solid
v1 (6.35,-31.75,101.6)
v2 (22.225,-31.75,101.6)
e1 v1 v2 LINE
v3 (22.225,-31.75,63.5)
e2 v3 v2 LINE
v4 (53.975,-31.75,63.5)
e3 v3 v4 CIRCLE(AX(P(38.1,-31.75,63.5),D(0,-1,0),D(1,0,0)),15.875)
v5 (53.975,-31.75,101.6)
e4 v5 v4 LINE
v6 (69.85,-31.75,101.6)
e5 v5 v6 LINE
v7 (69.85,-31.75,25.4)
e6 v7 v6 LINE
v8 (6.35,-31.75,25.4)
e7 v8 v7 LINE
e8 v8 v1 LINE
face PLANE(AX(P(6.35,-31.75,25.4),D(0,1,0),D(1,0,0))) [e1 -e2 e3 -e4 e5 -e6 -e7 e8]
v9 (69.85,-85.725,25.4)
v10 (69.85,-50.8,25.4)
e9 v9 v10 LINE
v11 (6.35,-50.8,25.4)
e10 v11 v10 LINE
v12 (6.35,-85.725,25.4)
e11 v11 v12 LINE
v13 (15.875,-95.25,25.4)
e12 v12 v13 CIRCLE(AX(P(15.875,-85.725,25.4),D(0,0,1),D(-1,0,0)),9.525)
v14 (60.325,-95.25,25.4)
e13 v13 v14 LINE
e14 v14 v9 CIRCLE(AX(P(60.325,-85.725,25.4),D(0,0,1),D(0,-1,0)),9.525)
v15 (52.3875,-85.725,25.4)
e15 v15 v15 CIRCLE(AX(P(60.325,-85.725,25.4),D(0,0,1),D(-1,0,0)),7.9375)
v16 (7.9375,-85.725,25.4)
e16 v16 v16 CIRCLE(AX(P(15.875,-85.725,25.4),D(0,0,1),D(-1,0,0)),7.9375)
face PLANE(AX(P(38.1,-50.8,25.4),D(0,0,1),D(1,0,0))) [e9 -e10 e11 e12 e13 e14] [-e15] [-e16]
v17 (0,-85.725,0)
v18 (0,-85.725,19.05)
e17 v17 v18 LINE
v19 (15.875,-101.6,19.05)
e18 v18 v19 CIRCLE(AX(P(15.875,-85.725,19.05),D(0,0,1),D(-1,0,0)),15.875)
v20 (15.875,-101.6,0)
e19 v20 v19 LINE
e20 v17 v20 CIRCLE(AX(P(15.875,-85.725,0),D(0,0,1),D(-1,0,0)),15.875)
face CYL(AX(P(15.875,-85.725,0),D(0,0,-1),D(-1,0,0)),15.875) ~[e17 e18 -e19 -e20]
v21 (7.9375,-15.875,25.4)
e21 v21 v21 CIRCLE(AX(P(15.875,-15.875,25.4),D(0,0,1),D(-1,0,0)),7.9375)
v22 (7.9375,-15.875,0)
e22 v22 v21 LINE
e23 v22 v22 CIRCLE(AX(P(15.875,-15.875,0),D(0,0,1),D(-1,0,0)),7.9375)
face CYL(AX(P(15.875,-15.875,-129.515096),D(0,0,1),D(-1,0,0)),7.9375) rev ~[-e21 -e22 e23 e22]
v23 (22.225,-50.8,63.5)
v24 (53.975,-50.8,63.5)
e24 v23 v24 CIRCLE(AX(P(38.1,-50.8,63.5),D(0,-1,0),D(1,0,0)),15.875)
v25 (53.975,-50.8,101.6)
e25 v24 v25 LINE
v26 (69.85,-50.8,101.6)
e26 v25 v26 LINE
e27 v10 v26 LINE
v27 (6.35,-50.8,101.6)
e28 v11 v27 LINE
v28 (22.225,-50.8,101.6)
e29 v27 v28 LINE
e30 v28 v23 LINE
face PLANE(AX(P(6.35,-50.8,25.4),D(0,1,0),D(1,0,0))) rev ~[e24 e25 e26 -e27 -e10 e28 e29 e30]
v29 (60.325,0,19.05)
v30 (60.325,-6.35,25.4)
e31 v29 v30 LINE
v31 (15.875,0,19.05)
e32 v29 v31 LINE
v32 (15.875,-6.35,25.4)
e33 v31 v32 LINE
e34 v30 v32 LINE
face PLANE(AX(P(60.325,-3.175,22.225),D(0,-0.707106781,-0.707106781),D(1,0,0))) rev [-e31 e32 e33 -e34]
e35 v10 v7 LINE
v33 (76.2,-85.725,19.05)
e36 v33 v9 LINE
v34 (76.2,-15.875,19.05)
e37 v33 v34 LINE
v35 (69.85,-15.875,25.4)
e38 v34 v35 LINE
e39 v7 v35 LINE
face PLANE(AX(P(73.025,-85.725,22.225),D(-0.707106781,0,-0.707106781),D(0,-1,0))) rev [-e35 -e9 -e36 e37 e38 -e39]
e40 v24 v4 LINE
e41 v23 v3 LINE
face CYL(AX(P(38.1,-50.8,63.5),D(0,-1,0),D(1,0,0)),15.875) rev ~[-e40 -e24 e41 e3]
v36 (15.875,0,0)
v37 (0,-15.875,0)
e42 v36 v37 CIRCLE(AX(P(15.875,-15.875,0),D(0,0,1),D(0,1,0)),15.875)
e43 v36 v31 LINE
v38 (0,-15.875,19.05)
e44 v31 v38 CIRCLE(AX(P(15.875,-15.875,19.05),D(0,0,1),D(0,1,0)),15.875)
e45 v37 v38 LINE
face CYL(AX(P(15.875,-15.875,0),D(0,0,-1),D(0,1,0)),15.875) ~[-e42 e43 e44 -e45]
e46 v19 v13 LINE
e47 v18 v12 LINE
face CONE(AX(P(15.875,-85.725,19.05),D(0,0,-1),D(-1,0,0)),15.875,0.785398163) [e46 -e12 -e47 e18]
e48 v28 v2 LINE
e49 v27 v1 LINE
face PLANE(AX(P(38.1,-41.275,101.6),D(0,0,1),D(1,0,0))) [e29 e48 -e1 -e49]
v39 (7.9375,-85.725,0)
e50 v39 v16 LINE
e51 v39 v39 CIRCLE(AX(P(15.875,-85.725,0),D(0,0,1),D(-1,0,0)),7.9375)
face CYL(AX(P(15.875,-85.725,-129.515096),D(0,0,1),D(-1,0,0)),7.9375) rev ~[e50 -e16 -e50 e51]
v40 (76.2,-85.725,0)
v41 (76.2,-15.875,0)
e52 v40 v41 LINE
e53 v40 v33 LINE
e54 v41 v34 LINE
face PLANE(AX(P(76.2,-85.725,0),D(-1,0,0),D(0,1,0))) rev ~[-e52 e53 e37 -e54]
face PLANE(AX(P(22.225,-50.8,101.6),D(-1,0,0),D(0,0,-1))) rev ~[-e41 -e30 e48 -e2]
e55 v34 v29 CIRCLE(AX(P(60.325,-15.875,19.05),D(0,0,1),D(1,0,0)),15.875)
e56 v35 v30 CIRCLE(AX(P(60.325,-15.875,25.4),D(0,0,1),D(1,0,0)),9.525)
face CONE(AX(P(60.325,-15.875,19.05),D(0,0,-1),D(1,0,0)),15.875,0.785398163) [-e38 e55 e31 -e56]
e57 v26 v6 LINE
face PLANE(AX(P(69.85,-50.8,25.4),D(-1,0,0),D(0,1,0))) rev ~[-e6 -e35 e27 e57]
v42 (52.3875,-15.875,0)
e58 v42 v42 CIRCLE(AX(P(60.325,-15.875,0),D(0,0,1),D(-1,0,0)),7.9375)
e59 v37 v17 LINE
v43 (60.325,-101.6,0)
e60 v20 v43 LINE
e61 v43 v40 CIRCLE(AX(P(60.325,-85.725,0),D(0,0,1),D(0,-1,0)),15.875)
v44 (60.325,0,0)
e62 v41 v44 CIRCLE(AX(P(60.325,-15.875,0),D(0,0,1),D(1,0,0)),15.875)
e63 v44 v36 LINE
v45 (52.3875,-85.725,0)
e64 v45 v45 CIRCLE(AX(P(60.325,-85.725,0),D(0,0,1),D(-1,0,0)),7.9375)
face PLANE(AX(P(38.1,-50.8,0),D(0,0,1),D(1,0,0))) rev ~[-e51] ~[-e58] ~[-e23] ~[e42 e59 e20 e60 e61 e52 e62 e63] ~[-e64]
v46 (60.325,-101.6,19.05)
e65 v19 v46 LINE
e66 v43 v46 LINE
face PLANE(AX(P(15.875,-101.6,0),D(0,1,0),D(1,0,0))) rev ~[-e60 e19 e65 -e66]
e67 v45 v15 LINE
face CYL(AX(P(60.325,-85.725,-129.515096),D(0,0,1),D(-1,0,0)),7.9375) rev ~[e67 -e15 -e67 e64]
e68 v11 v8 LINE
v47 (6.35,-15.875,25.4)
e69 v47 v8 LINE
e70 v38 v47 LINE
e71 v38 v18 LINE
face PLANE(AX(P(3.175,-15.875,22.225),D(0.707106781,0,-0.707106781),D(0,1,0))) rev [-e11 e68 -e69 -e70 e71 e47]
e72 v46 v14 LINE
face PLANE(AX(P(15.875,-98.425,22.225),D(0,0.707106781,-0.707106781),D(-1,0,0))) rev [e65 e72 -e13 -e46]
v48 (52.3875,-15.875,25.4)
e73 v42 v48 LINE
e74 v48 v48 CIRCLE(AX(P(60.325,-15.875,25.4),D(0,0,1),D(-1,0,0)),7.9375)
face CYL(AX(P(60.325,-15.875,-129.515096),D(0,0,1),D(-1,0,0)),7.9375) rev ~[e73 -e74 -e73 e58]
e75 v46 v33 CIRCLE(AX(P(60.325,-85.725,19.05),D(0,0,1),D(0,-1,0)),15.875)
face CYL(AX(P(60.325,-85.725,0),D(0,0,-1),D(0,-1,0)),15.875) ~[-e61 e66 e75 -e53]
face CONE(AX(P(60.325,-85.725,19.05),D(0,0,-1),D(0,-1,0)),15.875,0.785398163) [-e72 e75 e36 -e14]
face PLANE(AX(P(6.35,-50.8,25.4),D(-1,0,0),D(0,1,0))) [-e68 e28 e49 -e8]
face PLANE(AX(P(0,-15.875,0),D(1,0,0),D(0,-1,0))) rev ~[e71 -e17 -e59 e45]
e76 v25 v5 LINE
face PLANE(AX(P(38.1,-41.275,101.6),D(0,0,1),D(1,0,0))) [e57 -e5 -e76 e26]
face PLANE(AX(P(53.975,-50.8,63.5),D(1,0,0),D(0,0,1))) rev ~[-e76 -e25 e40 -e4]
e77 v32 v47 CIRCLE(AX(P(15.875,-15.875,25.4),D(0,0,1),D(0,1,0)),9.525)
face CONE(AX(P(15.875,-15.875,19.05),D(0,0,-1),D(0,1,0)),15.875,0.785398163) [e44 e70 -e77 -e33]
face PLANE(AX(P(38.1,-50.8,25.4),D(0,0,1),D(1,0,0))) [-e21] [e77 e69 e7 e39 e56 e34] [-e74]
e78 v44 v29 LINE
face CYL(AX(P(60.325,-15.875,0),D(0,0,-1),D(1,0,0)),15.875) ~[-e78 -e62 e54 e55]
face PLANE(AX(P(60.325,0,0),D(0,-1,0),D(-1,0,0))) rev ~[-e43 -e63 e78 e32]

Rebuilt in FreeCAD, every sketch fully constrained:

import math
import FreeCAD as App
import Part
import Sketcher
Q = App.Units.Quantity


def edges_at(feature, points):
    """Names of the edges that pass closest to the given points."""
    edges = feature.Shape.Edges
    near = lambda p: min(range(len(edges)), key=lambda i: edges[i].distToShape(Part.Vertex(*p))[0])
    return sorted({f"Edge{near(p) + 1}" for p in points})


def add_polygon(sketch, points):
    """Adds a closed chain of lines whose ends are joined by coincident constraints."""
    first, n = sketch.GeometryCount, len(points)
    for a, b in zip(points, points[1:] + points[:1]):
        sketch.addGeometry(Part.LineSegment(App.Vector(*a, 0), App.Vector(*b, 0)), False)
    for i in range(n):
        sketch.addConstraint(Sketcher.Constraint("Coincident", first + i, 2, first + (i + 1) % n, 1))

doc = App.newDocument("Part")
body = doc.addObject("PartDesign::Body", "Body")

sketch1 = doc.addObject("Sketcher::SketchObject", "Sketch")
body.addObject(sketch1)
sketch1.AttachmentSupport = (doc.XY_Plane, [""])
sketch1.MapMode = "FlatFace"
sketch1.addGeometry(Part.LineSegment(App.Vector(60, 0, 0), App.Vector(16, 0, 0)), False)
sketch1.addGeometry(Part.ArcOfCircle(Part.Circle(App.Vector(16, -16, 0), App.Vector(0, 0, 1), 16), math.radians(90), math.radians(180)), False)
sketch1.addGeometry(Part.LineSegment(App.Vector(0, -16, 0), App.Vector(0, -86, 0)), False)
sketch1.addGeometry(Part.ArcOfCircle(Part.Circle(App.Vector(16, -86, 0), App.Vector(0, 0, 1), 16), math.radians(180), math.radians(270)), False)
sketch1.addGeometry(Part.LineSegment(App.Vector(16, -102, 0), App.Vector(60, -102, 0)), False)
sketch1.addGeometry(Part.ArcOfCircle(Part.Circle(App.Vector(60, -86, 0), App.Vector(0, 0, 1), 16), math.radians(-90), math.radians(0)), False)
sketch1.addGeometry(Part.LineSegment(App.Vector(76, -86, 0), App.Vector(76, -16, 0)), False)
sketch1.addGeometry(Part.ArcOfCircle(Part.Circle(App.Vector(60, -16, 0), App.Vector(0, 0, 1), 16), math.radians(0), math.radians(90)), False)
sketch1.addConstraint(Sketcher.Constraint("Tangent", 0, 2, 1, 1))
sketch1.addConstraint(Sketcher.Constraint("Tangent", 1, 2, 2, 1))
sketch1.addConstraint(Sketcher.Constraint("Tangent", 2, 2, 3, 1))
sketch1.addConstraint(Sketcher.Constraint("Tangent", 3, 2, 4, 1))
sketch1.addConstraint(Sketcher.Constraint("Tangent", 4, 2, 5, 1))
sketch1.addConstraint(Sketcher.Constraint("Tangent", 5, 2, 6, 1))
sketch1.addConstraint(Sketcher.Constraint("Tangent", 6, 2, 7, 1))
sketch1.addConstraint(Sketcher.Constraint("Tangent", 7, 2, 0, 1))
sketch1.addConstraint(Sketcher.Constraint("Horizontal", 0))
sketch1.addConstraint(Sketcher.Constraint("Vertical", 2))
sketch1.addConstraint(Sketcher.Constraint("Horizontal", 4))
sketch1.addConstraint(Sketcher.Constraint("Vertical", 6))
sketch1.addConstraint(Sketcher.Constraint("Equal", 1, 3))
sketch1.addConstraint(Sketcher.Constraint("Equal", 3, 5))
sketch1.addConstraint(Sketcher.Constraint("Equal", 5, 7))
sketch1.addConstraint(Sketcher.Constraint("PointOnObject", 0, 2, -1))
sketch1.addConstraint(Sketcher.Constraint("PointOnObject", 1, 2, -2))
sketch1.addConstraint(Sketcher.Constraint("DistanceY", 3, 2, -1, 1, Q("4 in")))
sketch1.addConstraint(Sketcher.Constraint("DistanceX", -1, 1, 5, 2, Q("3 in")))
sketch1.addConstraint(Sketcher.Constraint("Radius", 1, Q("0.625 in")))
pad1 = doc.addObject("PartDesign::Pad", "Pad")
body.addObject(pad1)
pad1.Profile = sketch1
pad1.Length = Q("1 in")

sketch2 = doc.addObject("Sketcher::SketchObject", "Sketch001")
body.addObject(sketch2)
sketch2.AttachmentSupport = (doc.XY_Plane, [""])
sketch2.MapMode = "FlatFace"
sketch2.addGeometry(Part.Circle(App.Vector(16, -16, 0), App.Vector(0, 0, 1), 8), False)
sketch2.addGeometry(Part.Circle(App.Vector(60, -16, 0), App.Vector(0, 0, 1), 8), False)
sketch2.addGeometry(Part.Circle(App.Vector(60, -86, 0), App.Vector(0, 0, 1), 8), False)
sketch2.addGeometry(Part.Circle(App.Vector(16, -86, 0), App.Vector(0, 0, 1), 8), False)
sketch2.addConstraint(Sketcher.Constraint("Equal", 0, 1))
sketch2.addConstraint(Sketcher.Constraint("Equal", 1, 2))
sketch2.addConstraint(Sketcher.Constraint("Equal", 2, 3))
sketch2.addConstraint(Sketcher.Constraint("Horizontal", 0, 3, 1, 3))
sketch2.addConstraint(Sketcher.Constraint("Horizontal", 2, 3, 3, 3))
sketch2.addConstraint(Sketcher.Constraint("Vertical", 1, 3, 2, 3))
sketch2.addConstraint(Sketcher.Constraint("Vertical", 0, 3, 3, 3))
sketch2.addConstraint(Sketcher.Constraint("Diameter", 0, Q("0.625 in")))
sketch2.addConstraint(Sketcher.Constraint("DistanceX", 0, 3, 1, 3, Q("1.75 in")))
sketch2.addConstraint(Sketcher.Constraint("DistanceY", 2, 3, 1, 3, Q("2.75 in")))
sketch2.addConstraint(Sketcher.Constraint("DistanceX", -1, 1, 0, 3, Q("0.625 in")))
sketch2.addConstraint(Sketcher.Constraint("DistanceY", 0, 3, -1, 1, Q("0.625 in")))
doc.recompute()
hole = doc.addObject("PartDesign::Hole", "Hole")
body.addObject(hole)
hole.Profile = sketch2
hole.ThreadType = "None"
hole.Diameter = Q("0.625 in")
hole.DepthType = "ThroughAll"
hole.Reversed = True
doc.recompute()

chamfer = doc.addObject("PartDesign::Chamfer", "Chamfer")
body.addObject(chamfer)
chamfer.Base = (hole, edges_at(hole, [(4.65, -4.65, 25.4)]))
chamfer.Size = Q("0.25 in")

sketch3 = doc.addObject("Sketcher::SketchObject", "Sketch002")
body.addObject(sketch3)
sketch3.AttachmentSupport = (doc.XY_Plane, [""])
sketch3.MapMode = "FlatFace"
sketch3.AttachmentOffset = App.Placement(App.Vector(0, 0, 1 * 25.4), App.Rotation())
add_polygon(sketch3, [(6, -32), (6, -51), (70, -51), (70, -32)])
sketch3.addConstraint(Sketcher.Constraint("Vertical", 0))
sketch3.addConstraint(Sketcher.Constraint("Horizontal", 1))
sketch3.addConstraint(Sketcher.Constraint("Vertical", 2))
sketch3.addConstraint(Sketcher.Constraint("Horizontal", 3))
sketch3.addConstraint(Sketcher.Constraint("DistanceX", 1, 1, 1, 2, Q("2.5 in")))
sketch3.addConstraint(Sketcher.Constraint("DistanceY", 0, 2, -1, 1, Q("2 in")))
sketch3.addConstraint(Sketcher.Constraint("DistanceY", 0, 2, 0, 1, Q("0.75 in")))
sketch3.addConstraint(Sketcher.Constraint("DistanceX", -1, 1, 0, 2, Q("0.25 in")))
pad2 = doc.addObject("PartDesign::Pad", "Pad001")
body.addObject(pad2)
pad2.Profile = sketch3
pad2.Length = Q("3 in")

sketch4 = doc.addObject("Sketcher::SketchObject", "Sketch003")
body.addObject(sketch4)
sketch4.AttachmentSupport = (doc.XZ_Plane, [""])
sketch4.MapMode = "FlatFace"
sketch4.AttachmentOffset = App.Placement(App.Vector(0, 0, 2 * 25.4), App.Rotation())
sketch4.addGeometry(Part.LineSegment(App.Vector(54, 64, 0), App.Vector(54, 102, 0)), False)
sketch4.addGeometry(Part.LineSegment(App.Vector(54, 102, 0), App.Vector(22, 102, 0)), False)
sketch4.addGeometry(Part.LineSegment(App.Vector(22, 102, 0), App.Vector(22, 64, 0)), False)
sketch4.addGeometry(Part.ArcOfCircle(Part.Circle(App.Vector(38, 64, 0), App.Vector(0, 0, 1), 16), math.radians(180), math.radians(360)), False)
sketch4.addConstraint(Sketcher.Constraint("Coincident", 0, 2, 1, 1))
sketch4.addConstraint(Sketcher.Constraint("Coincident", 1, 2, 2, 1))
sketch4.addConstraint(Sketcher.Constraint("Tangent", 2, 2, 3, 1))
sketch4.addConstraint(Sketcher.Constraint("Tangent", 3, 2, 0, 1))
sketch4.addConstraint(Sketcher.Constraint("Vertical", 0))
sketch4.addConstraint(Sketcher.Constraint("Horizontal", 1))
sketch4.addConstraint(Sketcher.Constraint("Vertical", 2))
sketch4.addConstraint(Sketcher.Constraint("DistanceY", 0, 1, 0, 2, Q("1.5 in")))
sketch4.addConstraint(Sketcher.Constraint("DistanceY", -1, 1, 0, 2, Q("4 in")))
sketch4.addConstraint(Sketcher.Constraint("Radius", 3, Q("0.625 in")))
sketch4.addConstraint(Sketcher.Constraint("DistanceX", -1, 1, 3, 3, Q("1.5 in")))
pocket1 = doc.addObject("PartDesign::Pocket", "Pocket")
body.addObject(pocket1)
pocket1.Profile = sketch4
pocket1.Length = Q("1 in")

doc.recompute()
